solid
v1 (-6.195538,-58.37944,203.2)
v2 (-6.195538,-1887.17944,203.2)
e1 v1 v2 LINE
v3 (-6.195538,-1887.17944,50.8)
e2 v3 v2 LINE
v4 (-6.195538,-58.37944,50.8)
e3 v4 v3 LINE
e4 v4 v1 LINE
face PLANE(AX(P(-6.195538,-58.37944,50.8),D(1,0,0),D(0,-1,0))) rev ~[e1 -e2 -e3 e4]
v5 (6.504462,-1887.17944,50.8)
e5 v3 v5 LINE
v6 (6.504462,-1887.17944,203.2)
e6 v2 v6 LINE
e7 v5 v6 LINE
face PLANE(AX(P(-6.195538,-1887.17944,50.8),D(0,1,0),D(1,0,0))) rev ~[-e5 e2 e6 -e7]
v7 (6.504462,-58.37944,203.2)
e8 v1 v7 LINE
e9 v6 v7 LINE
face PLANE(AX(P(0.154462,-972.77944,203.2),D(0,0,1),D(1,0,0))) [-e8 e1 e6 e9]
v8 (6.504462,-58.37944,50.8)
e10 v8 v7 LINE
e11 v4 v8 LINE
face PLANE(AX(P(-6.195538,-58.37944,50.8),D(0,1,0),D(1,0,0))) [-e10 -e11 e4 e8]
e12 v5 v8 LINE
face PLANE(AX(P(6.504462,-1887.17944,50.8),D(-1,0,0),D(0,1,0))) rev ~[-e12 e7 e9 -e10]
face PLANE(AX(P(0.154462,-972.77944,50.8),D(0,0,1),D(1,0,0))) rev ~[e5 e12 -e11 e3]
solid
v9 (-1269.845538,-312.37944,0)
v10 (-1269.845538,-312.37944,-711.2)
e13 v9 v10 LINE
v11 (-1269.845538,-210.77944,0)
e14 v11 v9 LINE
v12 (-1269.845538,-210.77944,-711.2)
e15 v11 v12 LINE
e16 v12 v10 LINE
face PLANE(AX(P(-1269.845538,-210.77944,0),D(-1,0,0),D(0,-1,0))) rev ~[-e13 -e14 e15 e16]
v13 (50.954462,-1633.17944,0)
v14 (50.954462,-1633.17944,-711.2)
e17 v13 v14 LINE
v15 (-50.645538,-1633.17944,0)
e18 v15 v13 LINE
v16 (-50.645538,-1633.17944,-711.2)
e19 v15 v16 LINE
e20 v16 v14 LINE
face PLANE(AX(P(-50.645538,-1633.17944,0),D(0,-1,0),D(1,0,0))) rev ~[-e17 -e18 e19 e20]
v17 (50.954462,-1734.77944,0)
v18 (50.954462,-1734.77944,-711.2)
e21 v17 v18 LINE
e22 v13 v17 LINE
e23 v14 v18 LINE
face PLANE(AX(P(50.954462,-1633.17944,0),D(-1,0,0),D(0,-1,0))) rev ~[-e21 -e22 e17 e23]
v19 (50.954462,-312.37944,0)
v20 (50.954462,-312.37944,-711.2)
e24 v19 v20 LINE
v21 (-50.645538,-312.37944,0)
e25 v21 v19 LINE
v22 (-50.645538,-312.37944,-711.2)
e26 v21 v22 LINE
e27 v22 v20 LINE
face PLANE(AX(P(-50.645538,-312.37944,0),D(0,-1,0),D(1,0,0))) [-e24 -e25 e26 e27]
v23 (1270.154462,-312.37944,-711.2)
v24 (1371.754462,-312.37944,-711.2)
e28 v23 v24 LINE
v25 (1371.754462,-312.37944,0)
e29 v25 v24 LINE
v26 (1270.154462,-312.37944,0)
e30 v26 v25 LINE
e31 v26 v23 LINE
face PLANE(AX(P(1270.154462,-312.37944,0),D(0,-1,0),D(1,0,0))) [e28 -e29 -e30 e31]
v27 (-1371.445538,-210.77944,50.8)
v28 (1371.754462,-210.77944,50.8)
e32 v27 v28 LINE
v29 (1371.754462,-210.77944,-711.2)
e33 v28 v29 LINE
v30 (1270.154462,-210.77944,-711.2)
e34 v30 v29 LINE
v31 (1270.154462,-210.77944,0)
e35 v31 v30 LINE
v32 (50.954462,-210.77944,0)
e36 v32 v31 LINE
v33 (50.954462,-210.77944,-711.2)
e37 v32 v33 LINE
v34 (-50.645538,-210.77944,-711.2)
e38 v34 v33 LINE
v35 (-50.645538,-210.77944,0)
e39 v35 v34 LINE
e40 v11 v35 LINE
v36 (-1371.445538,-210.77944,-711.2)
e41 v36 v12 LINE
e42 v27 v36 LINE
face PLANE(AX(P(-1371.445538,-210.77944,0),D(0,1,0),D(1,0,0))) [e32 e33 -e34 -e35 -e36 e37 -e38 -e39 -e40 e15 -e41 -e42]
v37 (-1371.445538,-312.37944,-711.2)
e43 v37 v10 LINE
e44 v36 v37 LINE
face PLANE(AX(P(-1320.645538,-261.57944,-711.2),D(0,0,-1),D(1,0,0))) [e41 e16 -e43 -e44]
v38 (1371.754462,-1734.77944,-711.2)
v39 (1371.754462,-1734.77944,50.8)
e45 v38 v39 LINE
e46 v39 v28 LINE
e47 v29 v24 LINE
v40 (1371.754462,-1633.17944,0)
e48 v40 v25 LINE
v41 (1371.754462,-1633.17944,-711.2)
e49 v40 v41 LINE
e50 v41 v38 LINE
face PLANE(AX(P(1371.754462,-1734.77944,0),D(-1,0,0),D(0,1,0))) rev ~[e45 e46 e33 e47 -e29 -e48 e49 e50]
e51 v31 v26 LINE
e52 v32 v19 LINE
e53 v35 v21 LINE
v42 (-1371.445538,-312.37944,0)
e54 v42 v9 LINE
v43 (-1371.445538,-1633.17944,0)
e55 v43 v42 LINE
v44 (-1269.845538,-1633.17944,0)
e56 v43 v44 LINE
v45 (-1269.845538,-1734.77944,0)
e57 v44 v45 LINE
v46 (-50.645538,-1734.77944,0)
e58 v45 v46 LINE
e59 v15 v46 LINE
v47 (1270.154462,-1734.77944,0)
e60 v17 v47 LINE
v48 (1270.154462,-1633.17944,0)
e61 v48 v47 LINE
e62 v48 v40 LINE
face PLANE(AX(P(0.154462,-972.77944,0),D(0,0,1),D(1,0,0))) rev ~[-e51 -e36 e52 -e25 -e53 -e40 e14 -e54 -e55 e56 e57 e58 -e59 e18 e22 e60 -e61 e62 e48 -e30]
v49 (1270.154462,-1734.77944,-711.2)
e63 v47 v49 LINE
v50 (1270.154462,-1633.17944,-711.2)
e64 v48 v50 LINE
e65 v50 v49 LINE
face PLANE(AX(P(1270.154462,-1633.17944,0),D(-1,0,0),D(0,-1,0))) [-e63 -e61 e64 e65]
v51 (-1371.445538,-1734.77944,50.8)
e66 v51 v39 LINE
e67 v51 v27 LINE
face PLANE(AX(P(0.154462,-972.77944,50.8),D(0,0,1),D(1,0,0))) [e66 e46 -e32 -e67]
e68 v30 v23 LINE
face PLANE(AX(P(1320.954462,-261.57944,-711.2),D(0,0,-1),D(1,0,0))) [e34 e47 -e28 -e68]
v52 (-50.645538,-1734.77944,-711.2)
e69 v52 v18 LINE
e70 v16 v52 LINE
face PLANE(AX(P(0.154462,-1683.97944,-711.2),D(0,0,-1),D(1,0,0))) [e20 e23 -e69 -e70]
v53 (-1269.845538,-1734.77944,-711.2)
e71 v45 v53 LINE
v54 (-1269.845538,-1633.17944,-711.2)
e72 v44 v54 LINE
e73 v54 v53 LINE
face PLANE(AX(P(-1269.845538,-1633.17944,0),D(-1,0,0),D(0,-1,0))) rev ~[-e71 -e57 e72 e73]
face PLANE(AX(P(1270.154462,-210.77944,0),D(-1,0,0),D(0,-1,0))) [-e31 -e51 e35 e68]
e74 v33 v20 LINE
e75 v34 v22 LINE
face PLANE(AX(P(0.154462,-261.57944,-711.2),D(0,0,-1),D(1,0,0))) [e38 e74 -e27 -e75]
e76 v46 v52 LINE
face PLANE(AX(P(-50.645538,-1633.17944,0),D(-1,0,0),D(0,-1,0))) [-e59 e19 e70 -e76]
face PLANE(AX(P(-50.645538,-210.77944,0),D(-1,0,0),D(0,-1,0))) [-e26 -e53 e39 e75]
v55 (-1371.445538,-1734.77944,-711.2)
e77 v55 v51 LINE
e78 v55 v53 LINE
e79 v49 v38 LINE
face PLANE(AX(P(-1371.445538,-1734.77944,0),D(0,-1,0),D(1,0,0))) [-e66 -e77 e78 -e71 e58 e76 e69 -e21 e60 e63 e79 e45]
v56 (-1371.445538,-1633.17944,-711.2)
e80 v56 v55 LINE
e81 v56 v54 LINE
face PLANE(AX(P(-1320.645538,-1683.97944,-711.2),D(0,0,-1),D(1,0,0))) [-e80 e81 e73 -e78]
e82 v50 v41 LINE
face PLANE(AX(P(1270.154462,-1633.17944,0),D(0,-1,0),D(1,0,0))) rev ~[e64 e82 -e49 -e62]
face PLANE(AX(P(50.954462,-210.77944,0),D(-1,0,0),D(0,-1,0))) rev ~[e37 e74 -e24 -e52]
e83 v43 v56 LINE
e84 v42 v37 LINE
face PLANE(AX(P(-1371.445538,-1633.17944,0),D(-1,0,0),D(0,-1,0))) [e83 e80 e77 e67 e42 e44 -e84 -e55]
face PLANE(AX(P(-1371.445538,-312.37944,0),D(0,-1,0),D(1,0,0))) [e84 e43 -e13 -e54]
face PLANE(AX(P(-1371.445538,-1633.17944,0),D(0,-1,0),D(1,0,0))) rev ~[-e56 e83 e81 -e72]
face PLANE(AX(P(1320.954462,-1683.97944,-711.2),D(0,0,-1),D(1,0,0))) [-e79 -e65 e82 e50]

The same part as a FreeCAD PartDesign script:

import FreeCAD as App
import Part
import Sketcher

V = App.Vector
Q = App.Units.Quantity

doc = App.newDocument("Part")
params = doc.addObject("Spreadsheet::Sheet", "Params")
for row, (alias, value) in enumerate([
    ("sketch1_width", "108 in"),
    ("sketch1_height", "60 in"),
    ("pad1_length", "2 in"),
    ("sketch2_width", "4 in"),
    ("pad2_length", "28 in"),
    ("sketch3_height", "72 in"),
    ("sketch3_width", "0.5 in"),
    ("pad3_length", "6 in"),
], start=1):
    params.set(f"A{row}", alias)
    params.set(f"B{row}", "=" + value)
    params.setAlias(f"B{row}", alias)

body = doc.addObject("PartDesign::Body", "Body")

sketch1 = body.newObject("Sketcher::SketchObject", "Sketch")
sketch1.AttachmentSupport = (doc.getObject("XY_Plane"), [""])
sketch1.MapMode = "FlatFace"
sketch1.addGeometry(Part.LineSegment(V(-1371, -211, 0), V(-1371, -1735, 0)), False)
sketch1.addGeometry(Part.LineSegment(V(-1371, -1735, 0), V(1372, -1735, 0)), False)
sketch1.addGeometry(Part.LineSegment(V(1372, -1735, 0), V(1372, -211, 0)), False)
sketch1.addGeometry(Part.LineSegment(V(1372, -211, 0), V(-1371, -211, 0)), False)
sketch1.addConstraint(Sketcher.Constraint("Coincident", 0, 2, 1, 1))
sketch1.addConstraint(Sketcher.Constraint("Coincident", 1, 2, 2, 1))
sketch1.addConstraint(Sketcher.Constraint("Coincident", 2, 2, 3, 1))
sketch1.addConstraint(Sketcher.Constraint("Coincident", 3, 2, 0, 1))
sketch1.addConstraint(Sketcher.Constraint("Vertical", 0))
sketch1.addConstraint(Sketcher.Constraint("Horizontal", 1))
sketch1.addConstraint(Sketcher.Constraint("Vertical", 2))
sketch1.addConstraint(Sketcher.Constraint("Horizontal", 3))
sketch1.addConstraint(Sketcher.Constraint("DistanceX", 1, 1, 1, 2, Q("108 in")))
sketch1.addConstraint(Sketcher.Constraint("DistanceY", 0, 2, 0, 1, Q("60 in")))
sketch1.addConstraint(Sketcher.Constraint("DistanceX", 0, 2, -1, 1, Q("1371.445538 mm")))
sketch1.addConstraint(Sketcher.Constraint("DistanceY", 0, 2, -1, 1, Q("1734.77944 mm")))
sketch1.setExpression("Constraints[8]", "Params.sketch1_width")
sketch1.setExpression("Constraints[9]", "Params.sketch1_height")
pad1 = body.newObject("PartDesign::Pad", "Pad")
pad1.Profile = sketch1
pad1.setExpression("Length", "Params.pad1_length")

sketch2 = body.newObject("Sketcher::SketchObject", "Sketch001")
sketch2.AttachmentSupport = (doc.getObject("XY_Plane"), [""])
sketch2.MapMode = "FlatFace"
sketch2.addGeometry(Part.LineSegment(V(-1371, -1735, 0), V(-1371, -1633, 0)), False)
sketch2.addGeometry(Part.LineSegment(V(-1371, -1633, 0), V(-1270, -1633, 0)), False)
sketch2.addGeometry(Part.LineSegment(V(-1270, -1633, 0), V(-1270, -1735, 0)), False)
sketch2.addGeometry(Part.LineSegment(V(-1270, -1735, 0), V(-1371, -1735, 0)), False)
sketch2.addGeometry(Part.LineSegment(V(-51, -1735, 0), V(-51, -1633, 0)), False)
sketch2.addGeometry(Part.LineSegment(V(-51, -1633, 0), V(51, -1633, 0)), False)
sketch2.addGeometry(Part.LineSegment(V(51, -1633, 0), V(51, -1735, 0)), False)
sketch2.addGeometry(Part.LineSegment(V(51, -1735, 0), V(-51, -1735, 0)), False)
sketch2.addGeometry(Part.LineSegment(V(1270, -1735, 0), V(1270, -1633, 0)), False)
sketch2.addGeometry(Part.LineSegment(V(1270, -1633, 0), V(1372, -1633, 0)), False)
sketch2.addGeometry(Part.LineSegment(V(1372, -1633, 0), V(1372, -1735, 0)), False)
sketch2.addGeometry(Part.LineSegment(V(1372, -1735, 0), V(1270, -1735, 0)), False)
sketch2.addGeometry(Part.LineSegment(V(1270, -312, 0), V(1270, -211, 0)), False)
sketch2.addGeometry(Part.LineSegment(V(1270, -211, 0), V(1372, -211, 0)), False)
sketch2.addGeometry(Part.LineSegment(V(1372, -211, 0), V(1372, -312, 0)), False)
sketch2.addGeometry(Part.LineSegment(V(1372, -312, 0), V(1270, -312, 0)), False)
sketch2.addGeometry(Part.LineSegment(V(-51, -312, 0), V(-51, -211, 0)), False)
sketch2.addGeometry(Part.LineSegment(V(-51, -211, 0), V(51, -211, 0)), False)
sketch2.addGeometry(Part.LineSegment(V(51, -211, 0), V(51, -312, 0)), False)
sketch2.addGeometry(Part.LineSegment(V(51, -312, 0), V(-51, -312, 0)), False)
sketch2.addGeometry(Part.LineSegment(V(-1371, -312, 0), V(-1371, -211, 0)), False)
sketch2.addGeometry(Part.LineSegment(V(-1371, -211, 0), V(-1270, -211, 0)), False)
sketch2.addGeometry(Part.LineSegment(V(-1270, -211, 0), V(-1270, -312, 0)), False)
sketch2.addGeometry(Part.LineSegment(V(-1270, -312, 0), V(-1371, -312, 0)), False)
sketch2.addConstraint(Sketcher.Constraint("Coincident", 0, 2, 1, 1))
sketch2.addConstraint(Sketcher.Constraint("Coincident", 1, 2, 2, 1))
sketch2.addConstraint(Sketcher.Constraint("Coincident", 2, 2, 3, 1))
sketch2.addConstraint(Sketcher.Constraint("Coincident", 3, 2, 0, 1))
sketch2.addConstraint(Sketcher.Constraint("Coincident", 4, 2, 5, 1))
sketch2.addConstraint(Sketcher.Constraint("Coincident", 5, 2, 6, 1))
sketch2.addConstraint(Sketcher.Constraint("Coincident", 6, 2, 7, 1))
sketch2.addConstraint(Sketcher.Constraint("Coincident", 7, 2, 4, 1))
sketch2.addConstraint(Sketcher.Constraint("Coincident", 8, 2, 9, 1))
sketch2.addConstraint(Sketcher.Constraint("Coincident", 9, 2, 10, 1))
sketch2.addConstraint(Sketcher.Constraint("Coincident", 10, 2, 11, 1))
sketch2.addConstraint(Sketcher.Constraint("Coincident", 11, 2, 8, 1))
sketch2.addConstraint(Sketcher.Constraint("Coincident", 12, 2, 13, 1))
sketch2.addConstraint(Sketcher.Constraint("Coincident", 13, 2, 14, 1))
sketch2.addConstraint(Sketcher.Constraint("Coincident", 14, 2, 15, 1))
sketch2.addConstraint(Sketcher.Constraint("Coincident", 15, 2, 12, 1))
sketch2.addConstraint(Sketcher.Constraint("Coincident", 16, 2, 17, 1))
sketch2.addConstraint(Sketcher.Constraint("Coincident", 17, 2, 18, 1))
sketch2.addConstraint(Sketcher.Constraint("Coincident", 18, 2, 19, 1))
sketch2.addConstraint(Sketcher.Constraint("Coincident", 19, 2, 16, 1))
sketch2.addConstraint(Sketcher.Constraint("Coincident", 20, 2, 21, 1))
sketch2.addConstraint(Sketcher.Constraint("Coincident", 21, 2, 22, 1))
sketch2.addConstraint(Sketcher.Constraint("Coincident", 22, 2, 23, 1))
sketch2.addConstraint(Sketcher.Constraint("Coincident", 23, 2, 20, 1))
sketch2.addConstraint(Sketcher.Constraint("Vertical", 0))
sketch2.addConstraint(Sketcher.Constraint("Horizontal", 1))
sketch2.addConstraint(Sketcher.Constraint("Vertical", 2))
sketch2.addConstraint(Sketcher.Constraint("Horizontal", 3))
sketch2.addConstraint(Sketcher.Constraint("Vertical", 4))
sketch2.addConstraint(Sketcher.Constraint("Horizontal", 5))
sketch2.addConstraint(Sketcher.Constraint("Vertical", 6))
sketch2.addConstraint(Sketcher.Constraint("Horizontal", 7))
sketch2.addConstraint(Sketcher.Constraint("Vertical", 8))
sketch2.addConstraint(Sketcher.Constraint("Horizontal", 9))
sketch2.addConstraint(Sketcher.Constraint("Vertical", 10))
sketch2.addConstraint(Sketcher.Constraint("Horizontal", 11))
sketch2.addConstraint(Sketcher.Constraint("Vertical", 12))
sketch2.addConstraint(Sketcher.Constraint("Horizontal", 13))
sketch2.addConstraint(Sketcher.Constraint("Vertical", 14))
sketch2.addConstraint(Sketcher.Constraint("Horizontal", 15))
sketch2.addConstraint(Sketcher.Constraint("Vertical", 16))
sketch2.addConstraint(Sketcher.Constraint("Horizontal", 17))
sketch2.addConstraint(Sketcher.Constraint("Vertical", 18))
sketch2.addConstraint(Sketcher.Constraint("Horizontal", 19))
sketch2.addConstraint(Sketcher.Constraint("Vertical", 20))
sketch2.addConstraint(Sketcher.Constraint("Horizontal", 21))
sketch2.addConstraint(Sketcher.Constraint("Vertical", 22))
sketch2.addConstraint(Sketcher.Constraint("Horizontal", 23))
sketch2.addConstraint(Sketcher.Constraint("Horizontal", 1, 2, 4, 2))
sketch2.addConstraint(Sketcher.Constraint("Horizontal", 3, 2, 6, 2))
sketch2.addConstraint(Sketcher.Constraint("Horizontal", 5, 2, 8, 2))
sketch2.addConstraint(Sketcher.Constraint("Horizontal", 7, 2, 10, 2))
sketch2.addConstraint(Sketcher.Constraint("Horizontal", 13, 2, 16, 2))
sketch2.addConstraint(Sketcher.Constraint("Horizontal", 15, 2, 18, 2))
sketch2.addConstraint(Sketcher.Constraint("Horizontal", 17, 2, 20, 2))
sketch2.addConstraint(Sketcher.Constraint("Horizontal", 19, 2, 22, 2))
sketch2.addConstraint(Sketcher.Constraint("Vertical", 11, 2, 12, 2))
sketch2.addConstraint(Sketcher.Constraint("Vertical", 10, 2, 13, 2))
sketch2.addConstraint(Sketcher.Constraint("Vertical", 7, 2, 16, 2))
sketch2.addConstraint(Sketcher.Constraint("Vertical", 6, 2, 17, 2))
sketch2.addConstraint(Sketcher.Constraint("Vertical", 3, 2, 20, 2))
sketch2.addConstraint(Sketcher.Constraint("Vertical", 2, 2, 21, 2))
sketch2.addConstraint(Sketcher.Constraint("Equal", 3, 5))
sketch2.addConstraint(Sketcher.Constraint("Equal", 7, 9))
sketch2.addConstraint(Sketcher.Constraint("Equal", 23, 0))
sketch2.addConstraint(Sketcher.Constraint("Equal", 10, 12))
sketch2.addConstraint(Sketcher.Constraint("DistanceX", 1, 1, 1, 2, Q("4 in")))
sketch2.addConstraint(Sketcher.Constraint("DistanceX", 1, 2, 4, 2, Q("48 in")))
sketch2.addConstraint(Sketcher.Constraint("DistanceX", 5, 2, 8, 2, Q("48 in")))
sketch2.addConstraint(Sketcher.Constraint("DistanceY", 8, 2, 12, 2, Q("56 in")))
sketch2.addConstraint(Sketcher.Constraint("DistanceX", 0, 2, -1, 1, Q("1371.445538 mm")))
sketch2.addConstraint(Sketcher.Constraint("DistanceY", 0, 2, -1, 1, Q("1633.17944 mm")))
sketch2.setExpression("Constraints[66]", "Params.sketch2_width")
pad2 = body.newObject("PartDesign::Pad", "Pad001")
pad2.Profile = sketch2
pad2.setExpression("Length", "Params.pad2_length")
pad2.Reversed = True
body2 = doc.addObject("PartDesign::Body", "Body001")

sketch3 = body2.newObject("Sketcher::SketchObject", "Sketch002")
sketch3.AttachmentSupport = (doc.getObject("XY_Plane001"), [""])
sketch3.MapMode = "FlatFace"
sketch3.AttachmentOffset = App.Placement(V(0, 0, 2 * 25.4), App.Rotation())
sketch3.addGeometry(Part.LineSegment(V(-6, -1887, 0), V(7, -1887, 0)), False)
sketch3.addGeometry(Part.LineSegment(V(7, -1887, 0), V(7, -58, 0)), False)
sketch3.addGeometry(Part.LineSegment(V(7, -58, 0), V(-6, -58, 0)), False)
sketch3.addGeometry(Part.LineSegment(V(-6, -58, 0), V(-6, -1887, 0)), False)
sketch3.addConstraint(Sketcher.Constraint("Coincident", 0, 2, 1, 1))
sketch3.addConstraint(Sketcher.Constraint("Coincident", 1, 2, 2, 1))
sketch3.addConstraint(Sketcher.Constraint("Coincident", 2, 2, 3, 1))
sketch3.addConstraint(Sketcher.Constraint("Coincident", 3, 2, 0, 1))
sketch3.addConstraint(Sketcher.Constraint("Horizontal", 0))
sketch3.addConstraint(Sketcher.Constraint("Vertical", 1))
sketch3.addConstraint(Sketcher.Constraint("Horizontal", 2))
sketch3.addConstraint(Sketcher.Constraint("Vertical", 3))
sketch3.addConstraint(Sketcher.Constraint("DistanceY", 1, 1, 1, 2, Q("72 in")))
sketch3.addConstraint(Sketcher.Constraint("DistanceX", 0, 1, 0, 2, Q("0.5 in")))
sketch3.addConstraint(Sketcher.Constraint("DistanceX", -1, 1, 0, 2, Q("6.504462 mm")))
sketch3.addConstraint(Sketcher.Constraint("DistanceY", 0, 2, -1, 1, Q("1887.17944 mm")))
sketch3.setExpression("Constraints[8]", "Params.sketch3_height")
sketch3.setExpression("Constraints[9]", "Params.sketch3_width")
pad3 = body2.newObject("PartDesign::Pad", "Pad002")
pad3.Profile = sketch3
pad3.setExpression("Length", "Params.pad3_length")

doc.recompute()
